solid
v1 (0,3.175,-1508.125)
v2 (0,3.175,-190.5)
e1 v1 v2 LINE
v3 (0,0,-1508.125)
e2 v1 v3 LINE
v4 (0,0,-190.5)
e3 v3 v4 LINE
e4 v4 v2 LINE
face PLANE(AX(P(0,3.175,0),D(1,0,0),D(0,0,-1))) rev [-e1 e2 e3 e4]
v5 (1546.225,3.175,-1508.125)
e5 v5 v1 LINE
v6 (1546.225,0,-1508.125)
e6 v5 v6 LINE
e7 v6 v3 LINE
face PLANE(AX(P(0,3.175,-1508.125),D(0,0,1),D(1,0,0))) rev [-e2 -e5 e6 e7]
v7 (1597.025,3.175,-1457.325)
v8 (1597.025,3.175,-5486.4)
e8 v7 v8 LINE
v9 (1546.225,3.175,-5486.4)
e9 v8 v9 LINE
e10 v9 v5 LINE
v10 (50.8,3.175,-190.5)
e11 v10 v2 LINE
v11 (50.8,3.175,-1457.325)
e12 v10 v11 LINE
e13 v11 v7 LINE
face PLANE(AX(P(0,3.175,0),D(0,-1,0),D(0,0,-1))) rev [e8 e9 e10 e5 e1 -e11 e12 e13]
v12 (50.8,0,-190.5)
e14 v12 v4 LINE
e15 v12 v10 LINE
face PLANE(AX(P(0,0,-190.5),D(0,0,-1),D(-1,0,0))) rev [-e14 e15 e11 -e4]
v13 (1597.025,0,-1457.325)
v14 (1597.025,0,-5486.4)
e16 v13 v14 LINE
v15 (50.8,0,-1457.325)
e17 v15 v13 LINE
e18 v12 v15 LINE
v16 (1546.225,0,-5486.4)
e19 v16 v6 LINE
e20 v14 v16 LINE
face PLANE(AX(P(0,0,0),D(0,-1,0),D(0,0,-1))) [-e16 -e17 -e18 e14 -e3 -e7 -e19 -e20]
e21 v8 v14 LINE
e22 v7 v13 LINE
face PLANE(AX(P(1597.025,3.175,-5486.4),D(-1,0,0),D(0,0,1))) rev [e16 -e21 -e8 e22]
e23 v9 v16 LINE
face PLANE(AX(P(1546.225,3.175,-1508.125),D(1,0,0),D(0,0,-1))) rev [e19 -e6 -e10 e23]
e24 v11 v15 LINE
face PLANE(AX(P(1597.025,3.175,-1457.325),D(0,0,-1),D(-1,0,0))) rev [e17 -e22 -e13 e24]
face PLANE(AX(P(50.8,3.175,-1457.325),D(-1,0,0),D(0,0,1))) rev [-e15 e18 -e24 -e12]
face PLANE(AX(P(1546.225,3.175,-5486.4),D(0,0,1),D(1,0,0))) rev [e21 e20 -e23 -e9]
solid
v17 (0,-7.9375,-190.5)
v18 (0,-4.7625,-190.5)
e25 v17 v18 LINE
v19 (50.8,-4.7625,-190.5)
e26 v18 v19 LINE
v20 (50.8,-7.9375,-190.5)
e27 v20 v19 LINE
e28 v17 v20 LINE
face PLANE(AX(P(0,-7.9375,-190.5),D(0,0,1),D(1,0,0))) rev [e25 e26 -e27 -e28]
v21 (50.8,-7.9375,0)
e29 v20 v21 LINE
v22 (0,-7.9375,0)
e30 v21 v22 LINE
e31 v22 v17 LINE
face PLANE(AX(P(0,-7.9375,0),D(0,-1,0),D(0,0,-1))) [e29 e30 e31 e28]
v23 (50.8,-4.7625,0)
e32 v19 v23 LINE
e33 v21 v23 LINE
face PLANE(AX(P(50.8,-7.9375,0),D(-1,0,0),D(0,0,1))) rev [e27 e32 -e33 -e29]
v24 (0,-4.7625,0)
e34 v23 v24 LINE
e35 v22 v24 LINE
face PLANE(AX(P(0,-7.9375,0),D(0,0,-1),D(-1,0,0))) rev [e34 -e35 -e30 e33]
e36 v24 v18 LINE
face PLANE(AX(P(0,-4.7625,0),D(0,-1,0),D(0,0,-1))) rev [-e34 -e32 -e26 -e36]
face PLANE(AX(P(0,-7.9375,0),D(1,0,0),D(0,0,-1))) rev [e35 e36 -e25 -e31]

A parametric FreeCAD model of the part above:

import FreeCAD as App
import Part
import Sketcher
from FreeCAD import Vector
Q = App.Units.Quantity


def add_polygon(sketch, points):
    """Adds a closed chain of lines whose ends are joined by coincident constraints."""
    first, n = sketch.GeometryCount, len(points)
    for a, b in zip(points, points[1:] + points[:1]):
        sketch.addGeometry(Part.LineSegment(App.Vector(*a, 0), App.Vector(*b, 0)), False)
    for i in range(n):
        sketch.addConstraint(Sketcher.Constraint("Coincident", first + i, 2, first + (i + 1) % n, 1))

doc = App.newDocument("Part")
body = doc.addObject("PartDesign::Body", "Body")

# Sketch on XZ plane
sketch1 = body.newObject("Sketcher::SketchObject", "Sketch")
sketch1.AttachmentSupport = (doc.getObject("XZ_Plane"), [""])
sketch1.MapMode = "FlatFace"
add_polygon(sketch1, [(0, -1508), (0, 0), (51, 0), (51, -1457), (1597, -1457), (1597, -5486), (1546, -5486), (1546, -1508)])  # lines 0-7
sketch1.addConstraint([
    Sketcher.Constraint("Vertical", 0),
    Sketcher.Constraint("Horizontal", 1),
    Sketcher.Constraint("Vertical", 2),
    Sketcher.Constraint("Horizontal", 3),
    Sketcher.Constraint("Vertical", 4),
    Sketcher.Constraint("Horizontal", 5),
    Sketcher.Constraint("Vertical", 6),
    Sketcher.Constraint("Horizontal", 7),
    Sketcher.Constraint("Coincident", 0, 2, -1, 1),
    Sketcher.Constraint("Equal", 1, 5),
    Sketcher.Constraint("DistanceX", 1, 1, 1, 2, Q("2 in")),
    Sketcher.Constraint("DistanceY", 4, 2, -1, 1, Q("216 in")),
    Sketcher.Constraint("DistanceY", 6, 2, 3, 2, Q("2 in")),
    Sketcher.Constraint("DistanceX", 3, 1, 3, 2, Q("60.875 in")),
    Sketcher.Constraint("DistanceY", 0, 1, 0, 2, Q("59.375 in")),
])
pad1 = body.newObject("PartDesign::Pad", "Pad")
pad1.Profile = sketch1
pad1.Length = Q("0.125 in")
pad1.Reversed = True

# Sketch on XZ plane
sketch2 = body.newObject("Sketcher::SketchObject", "Sketch001")
sketch2.AttachmentSupport = (doc.getObject("XZ_Plane"), [""])
sketch2.MapMode = "FlatFace"
sketch2.AttachmentOffset = App.Placement(Vector(0, 0, -0.125 * 25.4), App.Rotation())
add_polygon(sketch2, [(0, -190), (0, 0), (51, 0), (51, -190)])  # lines 0-3
sketch2.addConstraint([
    Sketcher.Constraint("Vertical", 0),
    Sketcher.Constraint("Horizontal", 1),
    Sketcher.Constraint("Vertical", 2),
    Sketcher.Constraint("Horizontal", 3),
    Sketcher.Constraint("Coincident", 0, 2, -1, 1),
    Sketcher.Constraint("DistanceX", 1, 1, 1, 2, Q("2 in")),
    Sketcher.Constraint("DistanceY", 0, 1, 0, 2, Q("7.5 in")),
])
pocket1 = body.newObject("PartDesign::Pocket", "Pocket")
pocket1.Profile = sketch2
pocket1.Type = "ThroughAll"
pocket1.Reversed = True
body2 = doc.addObject("PartDesign::Body", "Body001")

# Sketch on XZ plane
sketch3 = body2.newObject("Sketcher::SketchObject", "Sketch002")
sketch3.AttachmentSupport = (doc.getObject("XZ_Plane001"), [""])
sketch3.MapMode = "FlatFace"
sketch3.AttachmentOffset = App.Placement(Vector(0, 0, 0.1875 * 25.4), App.Rotation())
add_polygon(sketch3, [(51, -190), (51, 0), (0, 0), (0, -190)])  # lines 0-3
sketch3.addConstraint([
    Sketcher.Constraint("Vertical", 0),
    Sketcher.Constraint("Horizontal", 1),
    Sketcher.Constraint("Vertical", 2),
    Sketcher.Constraint("Horizontal", 3),
    Sketcher.Constraint("Coincident", 1, 2, -1, 1),
    Sketcher.Constraint("DistanceX", 1, 2, 1, 1, Q("2 in")),
    Sketcher.Constraint("DistanceY", 0, 1, 0, 2, Q("7.5 in")),
])
pad2 = body2.newObject("PartDesign::Pad", "Pad001")
pad2.Profile = sketch3
pad2.Length = Q("0.125 in")

doc.recompute()
